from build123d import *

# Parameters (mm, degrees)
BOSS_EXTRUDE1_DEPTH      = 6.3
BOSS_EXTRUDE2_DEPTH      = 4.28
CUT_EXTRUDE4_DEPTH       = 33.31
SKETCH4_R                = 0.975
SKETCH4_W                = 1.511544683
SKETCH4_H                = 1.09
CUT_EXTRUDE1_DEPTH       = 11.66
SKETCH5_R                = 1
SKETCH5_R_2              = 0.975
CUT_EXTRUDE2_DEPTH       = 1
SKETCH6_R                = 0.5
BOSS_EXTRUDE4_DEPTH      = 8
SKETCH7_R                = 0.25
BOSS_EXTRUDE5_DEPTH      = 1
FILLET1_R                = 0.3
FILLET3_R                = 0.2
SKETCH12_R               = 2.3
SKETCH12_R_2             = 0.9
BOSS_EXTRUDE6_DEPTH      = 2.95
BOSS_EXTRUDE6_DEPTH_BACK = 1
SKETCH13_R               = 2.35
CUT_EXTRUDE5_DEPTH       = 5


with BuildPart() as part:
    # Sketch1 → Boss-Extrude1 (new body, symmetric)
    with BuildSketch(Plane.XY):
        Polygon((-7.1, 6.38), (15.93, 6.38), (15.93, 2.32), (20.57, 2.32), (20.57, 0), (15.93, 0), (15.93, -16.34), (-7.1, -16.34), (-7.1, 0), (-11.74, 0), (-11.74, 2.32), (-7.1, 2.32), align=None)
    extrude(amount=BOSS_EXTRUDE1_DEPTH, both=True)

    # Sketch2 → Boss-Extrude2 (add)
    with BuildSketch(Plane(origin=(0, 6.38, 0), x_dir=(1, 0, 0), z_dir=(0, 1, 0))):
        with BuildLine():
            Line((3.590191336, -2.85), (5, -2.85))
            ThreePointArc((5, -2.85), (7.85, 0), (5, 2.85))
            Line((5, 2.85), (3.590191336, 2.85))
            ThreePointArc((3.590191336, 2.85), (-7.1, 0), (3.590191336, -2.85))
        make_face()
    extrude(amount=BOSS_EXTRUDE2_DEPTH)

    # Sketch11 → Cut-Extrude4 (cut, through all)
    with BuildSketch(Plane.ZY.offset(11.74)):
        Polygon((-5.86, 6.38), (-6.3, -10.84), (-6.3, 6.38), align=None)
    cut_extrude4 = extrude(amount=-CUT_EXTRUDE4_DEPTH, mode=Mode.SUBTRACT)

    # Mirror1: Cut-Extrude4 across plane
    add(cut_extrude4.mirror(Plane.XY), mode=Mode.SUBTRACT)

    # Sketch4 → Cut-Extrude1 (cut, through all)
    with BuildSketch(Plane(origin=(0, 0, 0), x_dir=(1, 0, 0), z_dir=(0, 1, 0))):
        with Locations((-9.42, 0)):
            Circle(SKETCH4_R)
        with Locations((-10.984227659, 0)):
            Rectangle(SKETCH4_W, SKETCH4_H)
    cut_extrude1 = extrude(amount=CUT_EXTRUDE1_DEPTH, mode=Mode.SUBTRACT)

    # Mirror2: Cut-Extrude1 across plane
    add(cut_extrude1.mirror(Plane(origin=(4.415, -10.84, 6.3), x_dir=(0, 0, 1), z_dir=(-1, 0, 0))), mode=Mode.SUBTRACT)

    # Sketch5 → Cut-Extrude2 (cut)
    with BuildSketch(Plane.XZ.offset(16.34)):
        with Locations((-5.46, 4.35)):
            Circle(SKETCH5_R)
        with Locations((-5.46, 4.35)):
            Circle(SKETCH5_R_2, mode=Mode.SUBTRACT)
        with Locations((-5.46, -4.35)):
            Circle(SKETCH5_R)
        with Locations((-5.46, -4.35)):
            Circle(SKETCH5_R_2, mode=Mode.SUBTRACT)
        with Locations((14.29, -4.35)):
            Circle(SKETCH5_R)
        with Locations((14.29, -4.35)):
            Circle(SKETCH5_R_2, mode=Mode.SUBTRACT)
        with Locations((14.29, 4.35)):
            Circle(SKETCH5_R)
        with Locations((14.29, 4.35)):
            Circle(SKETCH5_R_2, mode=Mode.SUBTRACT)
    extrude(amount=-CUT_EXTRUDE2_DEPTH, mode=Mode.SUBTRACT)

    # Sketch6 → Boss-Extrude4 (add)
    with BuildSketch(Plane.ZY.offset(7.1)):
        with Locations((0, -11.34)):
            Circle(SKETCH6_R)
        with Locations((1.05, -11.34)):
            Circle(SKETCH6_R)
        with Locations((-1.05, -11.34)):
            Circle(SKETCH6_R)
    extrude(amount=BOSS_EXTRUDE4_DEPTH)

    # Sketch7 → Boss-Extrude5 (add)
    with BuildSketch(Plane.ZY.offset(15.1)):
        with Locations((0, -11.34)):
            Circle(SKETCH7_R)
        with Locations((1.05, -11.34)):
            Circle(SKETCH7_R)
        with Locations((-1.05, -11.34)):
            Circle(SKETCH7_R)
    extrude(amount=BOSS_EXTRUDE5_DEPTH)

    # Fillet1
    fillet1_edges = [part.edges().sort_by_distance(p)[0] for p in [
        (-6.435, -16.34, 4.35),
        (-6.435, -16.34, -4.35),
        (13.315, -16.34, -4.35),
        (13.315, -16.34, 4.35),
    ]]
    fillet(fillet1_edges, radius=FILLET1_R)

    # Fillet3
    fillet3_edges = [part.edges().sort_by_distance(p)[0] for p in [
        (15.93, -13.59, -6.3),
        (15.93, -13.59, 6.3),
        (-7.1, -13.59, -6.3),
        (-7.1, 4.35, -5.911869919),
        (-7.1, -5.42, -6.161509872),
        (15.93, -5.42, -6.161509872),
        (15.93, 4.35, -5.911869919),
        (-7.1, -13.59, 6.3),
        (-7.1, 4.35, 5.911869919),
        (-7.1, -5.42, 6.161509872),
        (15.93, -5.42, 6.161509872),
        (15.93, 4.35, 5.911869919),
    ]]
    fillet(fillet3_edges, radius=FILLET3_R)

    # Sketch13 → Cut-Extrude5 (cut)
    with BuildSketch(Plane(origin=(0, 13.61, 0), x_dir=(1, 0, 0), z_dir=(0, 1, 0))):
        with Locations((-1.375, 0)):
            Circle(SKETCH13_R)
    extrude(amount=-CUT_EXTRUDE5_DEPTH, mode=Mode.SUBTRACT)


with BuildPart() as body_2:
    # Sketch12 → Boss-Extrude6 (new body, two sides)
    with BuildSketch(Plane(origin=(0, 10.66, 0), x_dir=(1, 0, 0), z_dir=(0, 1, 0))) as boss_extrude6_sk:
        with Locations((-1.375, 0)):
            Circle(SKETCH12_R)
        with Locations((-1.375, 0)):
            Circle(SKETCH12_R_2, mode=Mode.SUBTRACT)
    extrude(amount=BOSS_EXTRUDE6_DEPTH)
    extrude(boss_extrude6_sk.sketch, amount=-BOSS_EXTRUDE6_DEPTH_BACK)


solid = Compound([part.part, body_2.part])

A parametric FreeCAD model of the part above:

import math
import FreeCAD as App
import Part
import Sketcher
from FreeCAD import Vector
Q = App.Units.Quantity


def edges_at(feature, points):
    """Names of the edges that pass closest to the given points."""
    edges = feature.Shape.Edges
    near = lambda p: min(range(len(edges)), key=lambda i: edges[i].distToShape(Part.Vertex(*p))[0])
    return sorted({f"Edge{near(p) + 1}" for p in points})

doc = App.newDocument("Part")
body = doc.addObject("PartDesign::Body", "Body")

sketch1 = doc.addObject("Sketcher::SketchObject", "Sketch")
body.addObject(sketch1)
sketch1.AttachmentSupport = (doc.XY_Plane, [""])
sketch1.MapMode = "FlatFace"
sketch1.addGeometry(Part.LineSegment(Vector(15.9, 6.4, 0), Vector(-7.1, 6.4, 0)), False)
sketch1.addGeometry(Part.LineSegment(Vector(-7.1, 6.4, 0), Vector(-7.1, 2.3, 0)), False)
sketch1.addGeometry(Part.LineSegment(Vector(-7.1, 2.3, 0), Vector(-11.7, 2.3, 0)), False)
sketch1.addGeometry(Part.LineSegment(Vector(-11.7, 2.3, 0), Vector(-11.7, 0, 0)), False)
sketch1.addGeometry(Part.LineSegment(Vector(-11.7, 0, 0), Vector(-7.1, 0, 0)), False)
sketch1.addGeometry(Part.LineSegment(Vector(-7.1, 0, 0), Vector(-7.1, -16.3, 0)), False)
sketch1.addGeometry(Part.LineSegment(Vector(-7.1, -16.3, 0), Vector(15.9, -16.3, 0)), False)
sketch1.addGeometry(Part.LineSegment(Vector(15.9, -16.3, 0), Vector(15.9, 0, 0)), False)
sketch1.addGeometry(Part.LineSegment(Vector(15.9, 0, 0), Vector(20.6, 0, 0)), False)
sketch1.addGeometry(Part.LineSegment(Vector(20.6, 0, 0), Vector(20.6, 2.3, 0)), False)
sketch1.addGeometry(Part.LineSegment(Vector(20.6, 2.3, 0), Vector(15.9, 2.3, 0)), False)
sketch1.addGeometry(Part.LineSegment(Vector(15.9, 2.3, 0), Vector(15.9, 6.4, 0)), False)
sketch1.addConstraint(Sketcher.Constraint("Coincident", 0, 2, 1, 1))
sketch1.addConstraint(Sketcher.Constraint("Coincident", 1, 2, 2, 1))
sketch1.addConstraint(Sketcher.Constraint("Coincident", 2, 2, 3, 1))
sketch1.addConstraint(Sketcher.Constraint("Coincident", 3, 2, 4, 1))
sketch1.addConstraint(Sketcher.Constraint("Coincident", 4, 2, 5, 1))
sketch1.addConstraint(Sketcher.Constraint("Coincident", 5, 2, 6, 1))
sketch1.addConstraint(Sketcher.Constraint("Coincident", 6, 2, 7, 1))
sketch1.addConstraint(Sketcher.Constraint("Coincident", 7, 2, 8, 1))
sketch1.addConstraint(Sketcher.Constraint("Coincident", 8, 2, 9, 1))
sketch1.addConstraint(Sketcher.Constraint("Coincident", 9, 2, 10, 1))
sketch1.addConstraint(Sketcher.Constraint("Coincident", 10, 2, 11, 1))
sketch1.addConstraint(Sketcher.Constraint("Coincident", 11, 2, 0, 1))
sketch1.addConstraint(Sketcher.Constraint("Horizontal", 0))
sketch1.addConstraint(Sketcher.Constraint("Vertical", 1))
sketch1.addConstraint(Sketcher.Constraint("Horizontal", 2))
sketch1.addConstraint(Sketcher.Constraint("Vertical", 3))
sketch1.addConstraint(Sketcher.Constraint("Horizontal", 4))
sketch1.addConstraint(Sketcher.Constraint("Vertical", 5))
sketch1.addConstraint(Sketcher.Constraint("Horizontal", 6))
sketch1.addConstraint(Sketcher.Constraint("Vertical", 7))
sketch1.addConstraint(Sketcher.Constraint("Horizontal", 8))
sketch1.addConstraint(Sketcher.Constraint("Vertical", 9))
sketch1.addConstraint(Sketcher.Constraint("Horizontal", 10))
sketch1.addConstraint(Sketcher.Constraint("Vertical", 11))
sketch1.addConstraint(Sketcher.Constraint("PointOnObject", 3, 2, -1))
sketch1.addConstraint(Sketcher.Constraint("PointOnObject", 7, 2, -1))
sketch1.addConstraint(Sketcher.Constraint("Horizontal", 2, 2, 9, 2))
sketch1.addConstraint(Sketcher.Constraint("Vertical", 1, 2, 4, 2))
sketch1.addConstraint(Sketcher.Constraint("Vertical", 7, 2, 10, 2))
sketch1.addConstraint(Sketcher.Constraint("Equal", 4, 8))
sketch1.addConstraint(Sketcher.Constraint("DistanceX", 0, 2, 0, 1, Q("23.03 mm")))
sketch1.addConstraint(Sketcher.Constraint("DistanceX", 2, 2, 2, 1, Q("4.64 mm")))
sketch1.addConstraint(Sketcher.Constraint("DistanceY", 1, 2, 1, 1, Q("4.06 mm")))
sketch1.addConstraint(Sketcher.Constraint("DistanceY", 3, 2, 3, 1, Q("2.32 mm")))
sketch1.addConstraint(Sketcher.Constraint("DistanceY", 5, 2, 5, 1, Q("16.34 mm")))
sketch1.addConstraint(Sketcher.Constraint("DistanceX", 0, 2, -1, 1, Q("7.1 mm")))
pad1 = doc.addObject("PartDesign::Pad", "Pad")
body.addObject(pad1)
pad1.Profile = sketch1
pad1.Length = 12.6
pad1.Midplane = True

sketch2 = doc.addObject("Sketcher::SketchObject", "Sketch001")
body.addObject(sketch2)
sketch2.AttachmentSupport = (doc.XZ_Plane, [""])
sketch2.MapMode = "FlatFace"
sketch2.AttachmentOffset = App.Placement(Vector(0, 0, -6.38), App.Rotation())
sketch2.addGeometry(Part.LineSegment(Vector(3.6, 2.9, 0), Vector(5, 2.9, 0)), False)
sketch2.addGeometry(Part.ArcOfCircle(Part.Circle(Vector(5, 0, 0), Vector(0, 0, 1), 2.9), math.radians(-90), math.radians(90)), False)
sketch2.addGeometry(Part.LineSegment(Vector(5, -2.9, 0), Vector(3.6, -2.9, 0)), False)
sketch2.addGeometry(Part.ArcOfCircle(Part.Circle(Vector(-1.4, 0, 0), Vector(0, 0, 1), 5.7), math.radians(30), math.radians(330)), False)
sketch2.addConstraint(Sketcher.Constraint("Tangent", 0, 2, 1, 2))
sketch2.addConstraint(Sketcher.Constraint("Tangent", 1, 1, 2, 1))
sketch2.addConstraint(Sketcher.Constraint("Coincident", 2, 2, 3, 2))
sketch2.addConstraint(Sketcher.Constraint("Coincident", 3, 1, 0, 1))
sketch2.addConstraint(Sketcher.Constraint("Horizontal", 0))
sketch2.addConstraint(Sketcher.Constraint("Horizontal", 2))
sketch2.addConstraint(Sketcher.Constraint("Symmetric", 2, 2, 3, 1, -1))
sketch2.addConstraint(Sketcher.Constraint("Radius", 1, Q("2.85 mm")))
sketch2.addConstraint(Sketcher.Constraint("DistanceX", -1, 1, 1, 3, Q("5 mm")))
sketch2.addConstraint(Sketcher.Constraint("Radius", 3, Q("5.725 mm")))
sketch2.addConstraint(Sketcher.Constraint("DistanceX", 3, 3, -1, 1, Q("1.375 mm")))
pad2 = doc.addObject("PartDesign::Pad", "Pad001")
body.addObject(pad2)
pad2.Profile = sketch2
pad2.Length = 4.28
pad2.Reversed = True

sketch3 = doc.addObject("Sketcher::SketchObject", "Sketch002")
body.addObject(sketch3)
sketch3.AttachmentSupport = (doc.YZ_Plane, [""])
sketch3.MapMode = "FlatFace"
sketch3.AttachmentOffset = App.Placement(Vector(0, 0, -11.74), App.Rotation())
sketch3.addGeometry(Part.LineSegment(Vector(-10.84, -6.3, 0), Vector(6.38, -5.86, 0)), False)
sketch3.addGeometry(Part.LineSegment(Vector(6.38, -5.86, 0), Vector(6.38, -6.3, 0)), False)
sketch3.addGeometry(Part.LineSegment(Vector(6.38, -6.3, 0), Vector(-10.84, -6.3, 0)), False)
sketch3.addConstraint(Sketcher.Constraint("Coincident", 0, 2, 1, 1))
sketch3.addConstraint(Sketcher.Constraint("Coincident", 1, 2, 2, 1))
sketch3.addConstraint(Sketcher.Constraint("Coincident", 2, 2, 0, 1))
sketch3.addConstraint(Sketcher.Constraint("Vertical", 1))
sketch3.addConstraint(Sketcher.Constraint("Horizontal", 2))
sketch3.addConstraint(Sketcher.Constraint("DistanceX", 2, 2, 2, 1, Q("17.22 mm")))
sketch3.addConstraint(Sketcher.Constraint("DistanceY", 1, 2, 1, 1, Q("0.44 mm")))
sketch3.addConstraint(Sketcher.Constraint("DistanceY", 1, 2, -1, 1, Q("6.3 mm")))
sketch3.addConstraint(Sketcher.Constraint("DistanceX", -1, 1, 0, 2, Q("6.38 mm")))
pocket1 = doc.addObject("PartDesign::Pocket", "Pocket")
body.addObject(pocket1)
pocket1.Profile = sketch3
pocket1.Type = "ThroughAll"
pocket1.Reversed = True
doc.recompute()

mirrored = doc.addObject("PartDesign::Mirrored", "Mirrored")
body.addObject(mirrored)
mirrored.Originals = [pocket1]
mirrored.MirrorPlane = (doc.XY_Plane, [""])
body.Tip = mirrored

sketch4 = doc.addObject("Sketcher::SketchObject", "Sketch003")
body.addObject(sketch4)
sketch4.AttachmentSupport = (doc.XZ_Plane, [""])
sketch4.MapMode = "FlatFace"
sketch4.addGeometry(Part.ArcOfCircle(Part.Circle(Vector(-9.4, 0, 0), Vector(0, 0, 1), 1), math.radians(-146), math.radians(146)), False)
sketch4.addGeometry(Part.LineSegment(Vector(-10.2, -0.5, 0), Vector(-11.7, -0.5, 0)), False)
sketch4.addGeometry(Part.LineSegment(Vector(-11.7, -0.5, 0), Vector(-11.7, 0.5, 0)), False)
sketch4.addGeometry(Part.LineSegment(Vector(-11.7, 0.5, 0), Vector(-10.2, 0.5, 0)), False)
sketch4.addConstraint(Sketcher.Constraint("Coincident", 0, 1, 1, 1))
sketch4.addConstraint(Sketcher.Constraint("Coincident", 1, 2, 2, 1))
sketch4.addConstraint(Sketcher.Constraint("Coincident", 2, 2, 3, 1))
sketch4.addConstraint(Sketcher.Constraint("Coincident", 3, 2, 0, 2))
sketch4.addConstraint(Sketcher.Constraint("Horizontal", 1))
sketch4.addConstraint(Sketcher.Constraint("Vertical", 2))
sketch4.addConstraint(Sketcher.Constraint("Horizontal", 3))
sketch4.addConstraint(Sketcher.Constraint("Symmetric", 0, 1, 3, 2, -1))
sketch4.addConstraint(Sketcher.Constraint("Radius", 0, Q("0.975 mm")))
sketch4.addConstraint(Sketcher.Constraint("DistanceY", 2, 1, 2, 2, Q("1.09 mm")))
sketch4.addConstraint(Sketcher.Constraint("DistanceX", 0, 3, -1, 1, Q("9.42 mm")))
sketch4.addConstraint(Sketcher.Constraint("DistanceX", 1, 2, -1, 1, Q("11.74 mm")))
pocket2 = doc.addObject("PartDesign::Pocket", "Pocket001")
body.addObject(pocket2)
pocket2.Profile = sketch4
pocket2.Type = "ThroughAll"
doc.recompute()

datumplane = doc.addObject("PartDesign::Plane", "DatumPlane")
body.addObject(datumplane)
datumplane.AttachmentSupport = (doc.YZ_Plane, [""])
datumplane.MapMode = "FlatFace"
datumplane.AttachmentOffset = App.Placement(Vector(0, 0, 4.415), App.Rotation())
mirrored2 = doc.addObject("PartDesign::Mirrored", "Mirrored001")
body.addObject(mirrored2)
mirrored2.Originals = [pocket2]
mirrored2.MirrorPlane = (datumplane, [""])
body.Tip = mirrored2

sketch5 = doc.addObject("Sketcher::SketchObject", "Sketch004")
body.addObject(sketch5)
sketch5.AttachmentSupport = (doc.XZ_Plane, [""])
sketch5.MapMode = "FlatFace"
sketch5.AttachmentOffset = App.Placement(Vector(0, 0, 16.34), App.Rotation())
sketch5.addGeometry(Part.Circle(Vector(-5.5, 4.3, 0), Vector(0, 0, 1), 1), False)
sketch5.addGeometry(Part.Circle(Vector(-5.5, 4.3, 0), Vector(0, 0, 1), 1), False)
sketch5.addGeometry(Part.Circle(Vector(-5.5, -4.3, 0), Vector(0, 0, 1), 1), False)
sketch5.addGeometry(Part.Circle(Vector(-5.5, -4.3, 0), Vector(0, 0, 1), 1), False)
sketch5.addGeometry(Part.Circle(Vector(14.3, -4.3, 0), Vector(0, 0, 1), 1), False)
sketch5.addGeometry(Part.Circle(Vector(14.3, -4.3, 0), Vector(0, 0, 1), 1), False)
sketch5.addGeometry(Part.Circle(Vector(14.3, 4.3, 0), Vector(0, 0, 1), 1), False)
sketch5.addGeometry(Part.Circle(Vector(14.3, 4.3, 0), Vector(0, 0, 1), 1), False)
sketch5.addConstraint(Sketcher.Constraint("Coincident", 1, 3, 0, 3))
sketch5.addConstraint(Sketcher.Constraint("Coincident", 3, 3, 2, 3))
sketch5.addConstraint(Sketcher.Constraint("Coincident", 5, 3, 4, 3))
sketch5.addConstraint(Sketcher.Constraint("Coincident", 7, 3, 6, 3))
sketch5.addConstraint(Sketcher.Constraint("Equal", 0, 2))
sketch5.addConstraint(Sketcher.Constraint("Equal", 1, 3))
sketch5.addConstraint(Sketcher.Constraint("Equal", 2, 4))
sketch5.addConstraint(Sketcher.Constraint("Equal", 3, 5))
sketch5.addConstraint(Sketcher.Constraint("Equal", 4, 6))
sketch5.addConstraint(Sketcher.Constraint("Equal", 5, 7))
sketch5.addConstraint(Sketcher.Constraint("Symmetric", 0, 3, 2, 3, -1))
sketch5.addConstraint(Sketcher.Constraint("Symmetric", 4, 3, 6, 3, -1))
sketch5.addConstraint(Sketcher.Constraint("Horizontal", 3, 3, 4, 3))
sketch5.addConstraint(Sketcher.Constraint("Diameter", 0, Q("2 mm")))
sketch5.addConstraint(Sketcher.Constraint("Diameter", 1, Q("1.95 mm")))
sketch5.addConstraint(Sketcher.Constraint("DistanceY", 2, 3, 0, 3, Q("8.7 mm")))
sketch5.addConstraint(Sketcher.Constraint("DistanceX", 0, 3, -1, 1, Q("5.46 mm")))
sketch5.addConstraint(Sketcher.Constraint("DistanceX", -1, 1, 4, 3, Q("14.29 mm")))
pocket3 = doc.addObject("PartDesign::Pocket", "Pocket002")
body.addObject(pocket3)
pocket3.Profile = sketch5
pocket3.Length = 1

sketch6 = doc.addObject("Sketcher::SketchObject", "Sketch005")
body.addObject(sketch6)
sketch6.AttachmentSupport = (doc.YZ_Plane, [""])
sketch6.MapMode = "FlatFace"
sketch6.AttachmentOffset = App.Placement(Vector(0, 0, -7.1), App.Rotation())
sketch6.addGeometry(Part.Circle(Vector(-11.3, 0, 0), Vector(0, 0, 1), 0.5), False)
sketch6.addGeometry(Part.Circle(Vector(-11.3, 1.1, 0), Vector(0, 0, 1), 0.5), False)
sketch6.addGeometry(Part.Circle(Vector(-11.3, -1.1, 0), Vector(0, 0, 1), 0.5), False)
sketch6.addConstraint(Sketcher.Constraint("Equal", 0, 1))
sketch6.addConstraint(Sketcher.Constraint("Equal", 1, 2))
sketch6.addConstraint(Sketcher.Constraint("Symmetric", 1, 3, 2, 3, -1))
sketch6.addConstraint(Sketcher.Constraint("PointOnObject", 0, 3, -1))
sketch6.addConstraint(Sketcher.Constraint("Vertical", 0, 3, 1, 3))
sketch6.addConstraint(Sketcher.Constraint("Diameter", 0, Q("1 mm")))
sketch6.addConstraint(Sketcher.Constraint("DistanceY", 2, 3, 1, 3, Q("2.1 mm")))
sketch6.addConstraint(Sketcher.Constraint("DistanceX", 0, 3, -1, 1, Q("11.34 mm")))
pad3 = doc.addObject("PartDesign::Pad", "Pad002")
body.addObject(pad3)
pad3.Profile = sketch6
pad3.Length = 8
pad3.Reversed = True

sketch7 = doc.addObject("Sketcher::SketchObject", "Sketch006")
body.addObject(sketch7)
sketch7.AttachmentSupport = (doc.YZ_Plane, [""])
sketch7.MapMode = "FlatFace"
sketch7.AttachmentOffset = App.Placement(Vector(0, 0, -15.1), App.Rotation())
sketch7.addGeometry(Part.Circle(Vector(-11.34, 0, 0), Vector(0, 0, 1), 0.25), False)
sketch7.addGeometry(Part.Circle(Vector(-11.34, 1.05, 0), Vector(0, 0, 1), 0.25), False)
sketch7.addGeometry(Part.Circle(Vector(-11.34, -1.05, 0), Vector(0, 0, 1), 0.25), False)
sketch7.addConstraint(Sketcher.Constraint("Equal", 0, 1))
sketch7.addConstraint(Sketcher.Constraint("Equal", 1, 2))
sketch7.addConstraint(Sketcher.Constraint("Symmetric", 1, 3, 2, 3, -1))
sketch7.addConstraint(Sketcher.Constraint("PointOnObject", 0, 3, -1))
sketch7.addConstraint(Sketcher.Constraint("Vertical", 0, 3, 1, 3))
sketch7.addConstraint(Sketcher.Constraint("Diameter", 0, Q("0.5 mm")))
sketch7.addConstraint(Sketcher.Constraint("DistanceY", 2, 3, 1, 3, Q("2.1 mm")))
sketch7.addConstraint(Sketcher.Constraint("DistanceX", 0, 3, -1, 1, Q("11.34 mm")))
pad4 = doc.addObject("PartDesign::Pad", "Pad003")
body.addObject(pad4)
pad4.Profile = sketch7
pad4.Length = 1
pad4.Reversed = True
doc.recompute()

fillet = doc.addObject("PartDesign::Fillet", "Fillet")
body.addObject(fillet)
fillet.Base = (pad4, edges_at(pad4, [
    (-6.435, -16.34, 4.35),
    (-6.435, -16.34, -4.35),
    (13.315, -16.34, -4.35),
    (13.315, -16.34, 4.35),
]))
fillet.Radius = 0.3
doc.recompute()

fillet2 = doc.addObject("PartDesign::Fillet", "Fillet001")
body.addObject(fillet2)
fillet2.Base = (fillet, edges_at(fillet, [
    (15.93, -13.59, -6.3),
    (15.93, -13.59, 6.3),
    (-7.1, -13.59, -6.3),
    (-7.1, 4.35, -5.912),
    (-7.1, -5.42, -6.162),
    (15.93, -5.42, -6.162),
    (15.93, 4.35, -5.912),
    (-7.1, -13.59, 6.3),
    (-7.1, 4.35, 5.912),
    (-7.1, -5.42, 6.162),
    (15.93, -5.42, 6.162),
    (15.93, 4.35, 5.912),
]))
fillet2.Radius = 0.2

sketch8 = doc.addObject("Sketcher::SketchObject", "Sketch007")
body.addObject(sketch8)
sketch8.AttachmentSupport = (doc.XZ_Plane, [""])
sketch8.MapMode = "FlatFace"
sketch8.AttachmentOffset = App.Placement(Vector(0, 0, -13.61), App.Rotation())
sketch8.addGeometry(Part.Circle(Vector(-1.4, 0, 0), Vector(0, 0, 1), 2.4), False)
sketch8.addConstraint(Sketcher.Constraint("PointOnObject", 0, 3, -1))
sketch8.addConstraint(Sketcher.Constraint("Diameter", 0, Q("4.7 mm")))
sketch8.addConstraint(Sketcher.Constraint("DistanceX", 0, 3, -1, 1, Q("1.375 mm")))
pocket4 = doc.addObject("PartDesign::Pocket", "Pocket003")
body.addObject(pocket4)
pocket4.Profile = sketch8
pocket4.Length = 5
pocket4.Reversed = True
body2 = doc.addObject("PartDesign::Body", "Body001")

sketch9 = doc.addObject("Sketcher::SketchObject", "Sketch008")
body2.addObject(sketch9)
sketch9.AttachmentSupport = (doc.getObject("XZ_Plane001"), [""])
sketch9.MapMode = "FlatFace"
sketch9.AttachmentOffset = App.Placement(Vector(0, 0, -10.66), App.Rotation())
sketch9.addGeometry(Part.Circle(Vector(-1.4, 0, 0), Vector(0, 0, 1), 2.3), False)
sketch9.addGeometry(Part.Circle(Vector(-1.4, 0, 0), Vector(0, 0, 1), 0.9), False)
sketch9.addConstraint(Sketcher.Constraint("Coincident", 1, 3, 0, 3))
sketch9.addConstraint(Sketcher.Constraint("PointOnObject", 0, 3, -1))
sketch9.addConstraint(Sketcher.Constraint("Diameter", 0, Q("4.6 mm")))
sketch9.addConstraint(Sketcher.Constraint("Diameter", 1, Q("1.8 mm")))
sketch9.addConstraint(Sketcher.Constraint("DistanceX", 0, 3, -1, 1, Q("1.375 mm")))
pad5 = doc.addObject("PartDesign::Pad", "Pad004")
body2.addObject(pad5)
pad5.Profile = sketch9
pad5.Type = "TwoLengths"
pad5.Length = 2.95
pad5.Length2 = 1
pad5.Reversed = True

doc.recompute()
